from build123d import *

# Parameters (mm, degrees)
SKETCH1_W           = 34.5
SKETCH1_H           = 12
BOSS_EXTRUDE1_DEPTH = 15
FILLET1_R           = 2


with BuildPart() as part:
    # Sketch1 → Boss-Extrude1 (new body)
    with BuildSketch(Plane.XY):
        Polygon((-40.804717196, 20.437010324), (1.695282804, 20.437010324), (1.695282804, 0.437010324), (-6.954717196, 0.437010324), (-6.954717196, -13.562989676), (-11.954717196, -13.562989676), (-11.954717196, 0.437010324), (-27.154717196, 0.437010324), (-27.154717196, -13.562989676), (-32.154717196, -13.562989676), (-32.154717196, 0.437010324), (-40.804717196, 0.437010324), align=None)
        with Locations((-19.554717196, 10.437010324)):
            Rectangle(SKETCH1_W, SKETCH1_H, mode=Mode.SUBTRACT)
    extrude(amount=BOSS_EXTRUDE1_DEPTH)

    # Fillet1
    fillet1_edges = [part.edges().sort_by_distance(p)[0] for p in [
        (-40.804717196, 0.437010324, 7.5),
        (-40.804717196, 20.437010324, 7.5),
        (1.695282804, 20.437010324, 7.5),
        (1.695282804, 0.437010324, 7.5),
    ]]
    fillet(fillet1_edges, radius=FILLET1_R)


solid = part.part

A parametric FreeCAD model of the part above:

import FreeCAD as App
import Part
import Sketcher
from FreeCAD import Vector
Q = App.Units.Quantity


def edges_at(feature, points):
    """Names of the edges that pass closest to the given points."""
    edges = feature.Shape.Edges
    near = lambda p: min(range(len(edges)), key=lambda i: edges[i].distToShape(Part.Vertex(*p))[0])
    return sorted({f"Edge{near(p) + 1}" for p in points})


def add_polygon(sketch, points):
    """Adds a closed chain of lines whose ends are joined by coincident constraints."""
    first, n = sketch.GeometryCount, len(points)
    for a, b in zip(points, points[1:] + points[:1]):
        sketch.addGeometry(Part.LineSegment(App.Vector(*a, 0), App.Vector(*b, 0)), False)
    for i in range(n):
        sketch.addConstraint(Sketcher.Constraint("Coincident", first + i, 2, first + (i + 1) % n, 1))

doc = App.newDocument("Part")
body = doc.addObject("PartDesign::Body", "Body")

# Sketch on XY plane
sketch1 = body.newObject("Sketcher::SketchObject", "Sketch")
sketch1.AttachmentSupport = (doc.getObject("XY_Plane"), [""])
sketch1.MapMode = "FlatFace"
add_polygon(sketch1, [(1.695283, 20.43701), (-40.804717, 20.43701), (-40.804717, 0.43701), (-32.154717, 0.43701), (-32.154717, -13.56299), (-27.154717, -13.56299), (-27.154717, 0.43701), (-11.954717, 0.43701), (-11.954717, -13.56299), (-6.954717, -13.56299), (-6.954717, 0.43701), (1.695283, 0.43701)])  # lines 0-11
add_polygon(sketch1, [(-36.804717, 4.43701), (-36.804717, 16.43701), (-2.304717, 16.43701), (-2.304717, 4.43701)])  # lines 12-15
sketch1.addConstraint(Sketcher.Constraint("Horizontal", 0))
sketch1.addConstraint(Sketcher.Constraint("Vertical", 1))
sketch1.addConstraint(Sketcher.Constraint("Horizontal", 2))
sketch1.addConstraint(Sketcher.Constraint("Vertical", 3))
sketch1.addConstraint(Sketcher.Constraint("Horizontal", 4))
sketch1.addConstraint(Sketcher.Constraint("Vertical", 5))
sketch1.addConstraint(Sketcher.Constraint("Horizontal", 6))
sketch1.addConstraint(Sketcher.Constraint("Vertical", 7))
sketch1.addConstraint(Sketcher.Constraint("Horizontal", 8))
sketch1.addConstraint(Sketcher.Constraint("Vertical", 9))
sketch1.addConstraint(Sketcher.Constraint("Horizontal", 10))
sketch1.addConstraint(Sketcher.Constraint("Vertical", 11))
sketch1.addConstraint(Sketcher.Constraint("Vertical", 12))
sketch1.addConstraint(Sketcher.Constraint("Horizontal", 13))
sketch1.addConstraint(Sketcher.Constraint("Vertical", 14))
sketch1.addConstraint(Sketcher.Constraint("Horizontal", 15))
sketch1.addConstraint(Sketcher.Constraint("Horizontal", 2, 2, 5, 2))
sketch1.addConstraint(Sketcher.Constraint("Horizontal", 4, 2, 7, 2))
sketch1.addConstraint(Sketcher.Constraint("Horizontal", 6, 2, 9, 2))
sketch1.addConstraint(Sketcher.Constraint("Equal", 4, 8))
sketch1.addConstraint(Sketcher.Constraint("Equal", 2, 10))
sketch1.addConstraint(Sketcher.Constraint("DistanceX", 4, 1, 4, 2, Q("5 mm")))
sketch1.addConstraint(Sketcher.Constraint("DistanceY", 1, 2, 1, 1, Q("20 mm")))
sketch1.addConstraint(Sketcher.Constraint("DistanceY", 3, 2, 3, 1, Q("14 mm")))
sketch1.addConstraint(Sketcher.Constraint("DistanceY", 12, 1, 12, 2, Q("12 mm")))
sketch1.addConstraint(Sketcher.Constraint("DistanceX", 0, 2, 0, 1, Q("42.5 mm")))
sketch1.addConstraint(Sketcher.Constraint("DistanceX", 6, 1, 6, 2, Q("15.2 mm")))
sketch1.addConstraint(Sketcher.Constraint("DistanceX", 13, 1, 13, 2, Q("34.5 mm")))
sketch1.addConstraint(Sketcher.Constraint("DistanceX", 0, 2, 12, 2, Q("4 mm")))
sketch1.addConstraint(Sketcher.Constraint("DistanceY", 12, 2, 0, 2, Q("4 mm")))
sketch1.addConstraint(Sketcher.Constraint("DistanceY", -1, 1, 0, 2, Q("20.43701 mm")))
sketch1.addConstraint(Sketcher.Constraint("DistanceX", 0, 2, -1, 1, Q("40.804717 mm")))
pad1 = body.newObject("PartDesign::Pad", "Pad")
pad1.Profile = sketch1
pad1.Length = 15
doc.recompute()

fillet = body.newObject("PartDesign::Fillet", "Fillet")
fillet.Base = (pad1, edges_at(pad1, [
    (-40.805, 0.437, 7.5),
    (-40.805, 20.437, 7.5),
    (1.695, 20.437, 7.5),
    (1.695, 0.437, 7.5),
]))
fillet.Radius = 2

doc.recompute()
